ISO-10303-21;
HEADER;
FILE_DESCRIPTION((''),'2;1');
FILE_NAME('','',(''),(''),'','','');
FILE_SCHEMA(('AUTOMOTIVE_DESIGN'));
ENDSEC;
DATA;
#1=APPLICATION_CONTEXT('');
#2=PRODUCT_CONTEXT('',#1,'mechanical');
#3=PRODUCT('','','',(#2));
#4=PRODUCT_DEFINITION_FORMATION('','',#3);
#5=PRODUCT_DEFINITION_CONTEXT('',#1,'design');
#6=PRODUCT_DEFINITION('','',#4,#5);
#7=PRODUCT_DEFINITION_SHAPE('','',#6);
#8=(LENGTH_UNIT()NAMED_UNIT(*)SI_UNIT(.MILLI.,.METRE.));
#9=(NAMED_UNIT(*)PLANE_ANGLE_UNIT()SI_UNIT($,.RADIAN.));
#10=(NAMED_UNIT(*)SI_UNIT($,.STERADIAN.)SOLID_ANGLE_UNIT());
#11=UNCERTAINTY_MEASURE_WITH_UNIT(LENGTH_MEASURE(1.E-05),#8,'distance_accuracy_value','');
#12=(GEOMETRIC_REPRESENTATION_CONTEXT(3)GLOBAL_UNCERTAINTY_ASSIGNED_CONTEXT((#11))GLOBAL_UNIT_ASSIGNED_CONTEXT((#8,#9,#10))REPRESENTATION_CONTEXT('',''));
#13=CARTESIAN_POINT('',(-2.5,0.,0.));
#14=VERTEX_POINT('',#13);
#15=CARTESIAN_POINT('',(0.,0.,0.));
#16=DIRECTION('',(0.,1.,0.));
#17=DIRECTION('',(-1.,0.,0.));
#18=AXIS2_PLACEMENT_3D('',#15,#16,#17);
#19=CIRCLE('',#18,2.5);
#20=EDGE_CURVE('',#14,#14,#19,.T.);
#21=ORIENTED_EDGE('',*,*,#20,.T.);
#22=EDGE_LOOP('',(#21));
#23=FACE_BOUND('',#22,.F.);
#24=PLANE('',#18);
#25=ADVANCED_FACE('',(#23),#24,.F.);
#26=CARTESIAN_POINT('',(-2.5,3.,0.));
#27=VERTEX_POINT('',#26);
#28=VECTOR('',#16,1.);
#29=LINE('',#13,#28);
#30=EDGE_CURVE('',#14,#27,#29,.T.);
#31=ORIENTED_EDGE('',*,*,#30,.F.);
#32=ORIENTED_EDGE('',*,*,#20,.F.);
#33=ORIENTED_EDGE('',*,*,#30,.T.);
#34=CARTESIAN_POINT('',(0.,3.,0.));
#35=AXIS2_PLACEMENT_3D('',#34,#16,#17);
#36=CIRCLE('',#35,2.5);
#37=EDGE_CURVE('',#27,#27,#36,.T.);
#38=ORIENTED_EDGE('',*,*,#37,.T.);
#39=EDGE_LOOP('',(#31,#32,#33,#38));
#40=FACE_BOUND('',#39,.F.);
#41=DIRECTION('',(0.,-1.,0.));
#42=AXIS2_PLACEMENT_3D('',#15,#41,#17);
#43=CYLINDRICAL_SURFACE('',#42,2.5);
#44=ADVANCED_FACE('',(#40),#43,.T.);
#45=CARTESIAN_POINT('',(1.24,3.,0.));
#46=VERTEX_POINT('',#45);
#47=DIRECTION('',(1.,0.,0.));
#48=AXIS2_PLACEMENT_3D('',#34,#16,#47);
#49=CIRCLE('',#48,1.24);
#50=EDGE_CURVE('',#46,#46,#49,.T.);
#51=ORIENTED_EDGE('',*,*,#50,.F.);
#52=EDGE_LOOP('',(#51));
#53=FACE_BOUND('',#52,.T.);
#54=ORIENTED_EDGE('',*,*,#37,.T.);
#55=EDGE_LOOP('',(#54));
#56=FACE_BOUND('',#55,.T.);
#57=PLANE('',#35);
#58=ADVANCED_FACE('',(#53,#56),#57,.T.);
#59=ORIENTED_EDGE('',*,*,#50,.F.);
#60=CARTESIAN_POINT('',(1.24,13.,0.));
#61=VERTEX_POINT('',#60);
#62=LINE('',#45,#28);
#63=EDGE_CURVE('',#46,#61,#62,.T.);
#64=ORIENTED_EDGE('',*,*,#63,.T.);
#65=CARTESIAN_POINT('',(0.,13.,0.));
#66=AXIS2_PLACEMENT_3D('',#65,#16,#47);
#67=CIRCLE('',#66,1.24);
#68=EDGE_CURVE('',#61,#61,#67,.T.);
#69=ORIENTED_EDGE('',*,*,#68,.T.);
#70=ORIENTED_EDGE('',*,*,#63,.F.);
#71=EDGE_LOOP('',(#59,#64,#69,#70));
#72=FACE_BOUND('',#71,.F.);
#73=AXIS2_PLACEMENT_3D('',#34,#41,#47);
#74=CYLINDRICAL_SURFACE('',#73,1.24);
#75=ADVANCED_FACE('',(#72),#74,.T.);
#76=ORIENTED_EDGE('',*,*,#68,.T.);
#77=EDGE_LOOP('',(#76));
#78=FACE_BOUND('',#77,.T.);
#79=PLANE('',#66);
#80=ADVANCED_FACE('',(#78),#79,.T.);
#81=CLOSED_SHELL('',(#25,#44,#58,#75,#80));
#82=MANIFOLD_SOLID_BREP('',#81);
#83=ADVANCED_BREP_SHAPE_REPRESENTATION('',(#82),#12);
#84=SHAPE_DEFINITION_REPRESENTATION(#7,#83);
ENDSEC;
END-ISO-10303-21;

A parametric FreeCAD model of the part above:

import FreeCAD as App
import Part
import Sketcher

V = App.Vector
Q = App.Units.Quantity

doc = App.newDocument("Part")
body = doc.addObject("PartDesign::Body", "Body")

# Sketch on XZ plane
sketch1 = doc.addObject("Sketcher::SketchObject", "Sketch")
body.addObject(sketch1)
sketch1.AttachmentSupport = (doc.XZ_Plane, [""])
sketch1.MapMode = "FlatFace"
sketch1.addGeometry(Part.Circle(V(0, 0, 0), V(0, 0, 1), 2.5), False)
sketch1.addConstraint([
    Sketcher.Constraint("Coincident", 0, 3, -1, 1),
    Sketcher.Constraint("Diameter", 0, Q("5 mm")),
])
pad1 = doc.addObject("PartDesign::Pad", "Pad")
body.addObject(pad1)
pad1.Profile = sketch1
pad1.Length = 3
pad1.Reversed = True

# Sketch on XZ plane
sketch2 = doc.addObject("Sketcher::SketchObject", "Sketch001")
body.addObject(sketch2)
sketch2.AttachmentSupport = (doc.XZ_Plane, [""])
sketch2.MapMode = "FlatFace"
sketch2.AttachmentOffset = App.Placement(V(0, 0, -3), App.Rotation())
sketch2.addGeometry(Part.Circle(V(0, 0, 0), V(0, 0, 1), 1.2), False)
sketch2.addConstraint([
    Sketcher.Constraint("Coincident", 0, 3, -1, 1),
    Sketcher.Constraint("Diameter", 0, Q("2.48 mm")),
])
pad2 = doc.addObject("PartDesign::Pad", "Pad001")
body.addObject(pad2)
pad2.Profile = sketch2
pad2.Length = 10
pad2.Reversed = True

doc.recompute()
